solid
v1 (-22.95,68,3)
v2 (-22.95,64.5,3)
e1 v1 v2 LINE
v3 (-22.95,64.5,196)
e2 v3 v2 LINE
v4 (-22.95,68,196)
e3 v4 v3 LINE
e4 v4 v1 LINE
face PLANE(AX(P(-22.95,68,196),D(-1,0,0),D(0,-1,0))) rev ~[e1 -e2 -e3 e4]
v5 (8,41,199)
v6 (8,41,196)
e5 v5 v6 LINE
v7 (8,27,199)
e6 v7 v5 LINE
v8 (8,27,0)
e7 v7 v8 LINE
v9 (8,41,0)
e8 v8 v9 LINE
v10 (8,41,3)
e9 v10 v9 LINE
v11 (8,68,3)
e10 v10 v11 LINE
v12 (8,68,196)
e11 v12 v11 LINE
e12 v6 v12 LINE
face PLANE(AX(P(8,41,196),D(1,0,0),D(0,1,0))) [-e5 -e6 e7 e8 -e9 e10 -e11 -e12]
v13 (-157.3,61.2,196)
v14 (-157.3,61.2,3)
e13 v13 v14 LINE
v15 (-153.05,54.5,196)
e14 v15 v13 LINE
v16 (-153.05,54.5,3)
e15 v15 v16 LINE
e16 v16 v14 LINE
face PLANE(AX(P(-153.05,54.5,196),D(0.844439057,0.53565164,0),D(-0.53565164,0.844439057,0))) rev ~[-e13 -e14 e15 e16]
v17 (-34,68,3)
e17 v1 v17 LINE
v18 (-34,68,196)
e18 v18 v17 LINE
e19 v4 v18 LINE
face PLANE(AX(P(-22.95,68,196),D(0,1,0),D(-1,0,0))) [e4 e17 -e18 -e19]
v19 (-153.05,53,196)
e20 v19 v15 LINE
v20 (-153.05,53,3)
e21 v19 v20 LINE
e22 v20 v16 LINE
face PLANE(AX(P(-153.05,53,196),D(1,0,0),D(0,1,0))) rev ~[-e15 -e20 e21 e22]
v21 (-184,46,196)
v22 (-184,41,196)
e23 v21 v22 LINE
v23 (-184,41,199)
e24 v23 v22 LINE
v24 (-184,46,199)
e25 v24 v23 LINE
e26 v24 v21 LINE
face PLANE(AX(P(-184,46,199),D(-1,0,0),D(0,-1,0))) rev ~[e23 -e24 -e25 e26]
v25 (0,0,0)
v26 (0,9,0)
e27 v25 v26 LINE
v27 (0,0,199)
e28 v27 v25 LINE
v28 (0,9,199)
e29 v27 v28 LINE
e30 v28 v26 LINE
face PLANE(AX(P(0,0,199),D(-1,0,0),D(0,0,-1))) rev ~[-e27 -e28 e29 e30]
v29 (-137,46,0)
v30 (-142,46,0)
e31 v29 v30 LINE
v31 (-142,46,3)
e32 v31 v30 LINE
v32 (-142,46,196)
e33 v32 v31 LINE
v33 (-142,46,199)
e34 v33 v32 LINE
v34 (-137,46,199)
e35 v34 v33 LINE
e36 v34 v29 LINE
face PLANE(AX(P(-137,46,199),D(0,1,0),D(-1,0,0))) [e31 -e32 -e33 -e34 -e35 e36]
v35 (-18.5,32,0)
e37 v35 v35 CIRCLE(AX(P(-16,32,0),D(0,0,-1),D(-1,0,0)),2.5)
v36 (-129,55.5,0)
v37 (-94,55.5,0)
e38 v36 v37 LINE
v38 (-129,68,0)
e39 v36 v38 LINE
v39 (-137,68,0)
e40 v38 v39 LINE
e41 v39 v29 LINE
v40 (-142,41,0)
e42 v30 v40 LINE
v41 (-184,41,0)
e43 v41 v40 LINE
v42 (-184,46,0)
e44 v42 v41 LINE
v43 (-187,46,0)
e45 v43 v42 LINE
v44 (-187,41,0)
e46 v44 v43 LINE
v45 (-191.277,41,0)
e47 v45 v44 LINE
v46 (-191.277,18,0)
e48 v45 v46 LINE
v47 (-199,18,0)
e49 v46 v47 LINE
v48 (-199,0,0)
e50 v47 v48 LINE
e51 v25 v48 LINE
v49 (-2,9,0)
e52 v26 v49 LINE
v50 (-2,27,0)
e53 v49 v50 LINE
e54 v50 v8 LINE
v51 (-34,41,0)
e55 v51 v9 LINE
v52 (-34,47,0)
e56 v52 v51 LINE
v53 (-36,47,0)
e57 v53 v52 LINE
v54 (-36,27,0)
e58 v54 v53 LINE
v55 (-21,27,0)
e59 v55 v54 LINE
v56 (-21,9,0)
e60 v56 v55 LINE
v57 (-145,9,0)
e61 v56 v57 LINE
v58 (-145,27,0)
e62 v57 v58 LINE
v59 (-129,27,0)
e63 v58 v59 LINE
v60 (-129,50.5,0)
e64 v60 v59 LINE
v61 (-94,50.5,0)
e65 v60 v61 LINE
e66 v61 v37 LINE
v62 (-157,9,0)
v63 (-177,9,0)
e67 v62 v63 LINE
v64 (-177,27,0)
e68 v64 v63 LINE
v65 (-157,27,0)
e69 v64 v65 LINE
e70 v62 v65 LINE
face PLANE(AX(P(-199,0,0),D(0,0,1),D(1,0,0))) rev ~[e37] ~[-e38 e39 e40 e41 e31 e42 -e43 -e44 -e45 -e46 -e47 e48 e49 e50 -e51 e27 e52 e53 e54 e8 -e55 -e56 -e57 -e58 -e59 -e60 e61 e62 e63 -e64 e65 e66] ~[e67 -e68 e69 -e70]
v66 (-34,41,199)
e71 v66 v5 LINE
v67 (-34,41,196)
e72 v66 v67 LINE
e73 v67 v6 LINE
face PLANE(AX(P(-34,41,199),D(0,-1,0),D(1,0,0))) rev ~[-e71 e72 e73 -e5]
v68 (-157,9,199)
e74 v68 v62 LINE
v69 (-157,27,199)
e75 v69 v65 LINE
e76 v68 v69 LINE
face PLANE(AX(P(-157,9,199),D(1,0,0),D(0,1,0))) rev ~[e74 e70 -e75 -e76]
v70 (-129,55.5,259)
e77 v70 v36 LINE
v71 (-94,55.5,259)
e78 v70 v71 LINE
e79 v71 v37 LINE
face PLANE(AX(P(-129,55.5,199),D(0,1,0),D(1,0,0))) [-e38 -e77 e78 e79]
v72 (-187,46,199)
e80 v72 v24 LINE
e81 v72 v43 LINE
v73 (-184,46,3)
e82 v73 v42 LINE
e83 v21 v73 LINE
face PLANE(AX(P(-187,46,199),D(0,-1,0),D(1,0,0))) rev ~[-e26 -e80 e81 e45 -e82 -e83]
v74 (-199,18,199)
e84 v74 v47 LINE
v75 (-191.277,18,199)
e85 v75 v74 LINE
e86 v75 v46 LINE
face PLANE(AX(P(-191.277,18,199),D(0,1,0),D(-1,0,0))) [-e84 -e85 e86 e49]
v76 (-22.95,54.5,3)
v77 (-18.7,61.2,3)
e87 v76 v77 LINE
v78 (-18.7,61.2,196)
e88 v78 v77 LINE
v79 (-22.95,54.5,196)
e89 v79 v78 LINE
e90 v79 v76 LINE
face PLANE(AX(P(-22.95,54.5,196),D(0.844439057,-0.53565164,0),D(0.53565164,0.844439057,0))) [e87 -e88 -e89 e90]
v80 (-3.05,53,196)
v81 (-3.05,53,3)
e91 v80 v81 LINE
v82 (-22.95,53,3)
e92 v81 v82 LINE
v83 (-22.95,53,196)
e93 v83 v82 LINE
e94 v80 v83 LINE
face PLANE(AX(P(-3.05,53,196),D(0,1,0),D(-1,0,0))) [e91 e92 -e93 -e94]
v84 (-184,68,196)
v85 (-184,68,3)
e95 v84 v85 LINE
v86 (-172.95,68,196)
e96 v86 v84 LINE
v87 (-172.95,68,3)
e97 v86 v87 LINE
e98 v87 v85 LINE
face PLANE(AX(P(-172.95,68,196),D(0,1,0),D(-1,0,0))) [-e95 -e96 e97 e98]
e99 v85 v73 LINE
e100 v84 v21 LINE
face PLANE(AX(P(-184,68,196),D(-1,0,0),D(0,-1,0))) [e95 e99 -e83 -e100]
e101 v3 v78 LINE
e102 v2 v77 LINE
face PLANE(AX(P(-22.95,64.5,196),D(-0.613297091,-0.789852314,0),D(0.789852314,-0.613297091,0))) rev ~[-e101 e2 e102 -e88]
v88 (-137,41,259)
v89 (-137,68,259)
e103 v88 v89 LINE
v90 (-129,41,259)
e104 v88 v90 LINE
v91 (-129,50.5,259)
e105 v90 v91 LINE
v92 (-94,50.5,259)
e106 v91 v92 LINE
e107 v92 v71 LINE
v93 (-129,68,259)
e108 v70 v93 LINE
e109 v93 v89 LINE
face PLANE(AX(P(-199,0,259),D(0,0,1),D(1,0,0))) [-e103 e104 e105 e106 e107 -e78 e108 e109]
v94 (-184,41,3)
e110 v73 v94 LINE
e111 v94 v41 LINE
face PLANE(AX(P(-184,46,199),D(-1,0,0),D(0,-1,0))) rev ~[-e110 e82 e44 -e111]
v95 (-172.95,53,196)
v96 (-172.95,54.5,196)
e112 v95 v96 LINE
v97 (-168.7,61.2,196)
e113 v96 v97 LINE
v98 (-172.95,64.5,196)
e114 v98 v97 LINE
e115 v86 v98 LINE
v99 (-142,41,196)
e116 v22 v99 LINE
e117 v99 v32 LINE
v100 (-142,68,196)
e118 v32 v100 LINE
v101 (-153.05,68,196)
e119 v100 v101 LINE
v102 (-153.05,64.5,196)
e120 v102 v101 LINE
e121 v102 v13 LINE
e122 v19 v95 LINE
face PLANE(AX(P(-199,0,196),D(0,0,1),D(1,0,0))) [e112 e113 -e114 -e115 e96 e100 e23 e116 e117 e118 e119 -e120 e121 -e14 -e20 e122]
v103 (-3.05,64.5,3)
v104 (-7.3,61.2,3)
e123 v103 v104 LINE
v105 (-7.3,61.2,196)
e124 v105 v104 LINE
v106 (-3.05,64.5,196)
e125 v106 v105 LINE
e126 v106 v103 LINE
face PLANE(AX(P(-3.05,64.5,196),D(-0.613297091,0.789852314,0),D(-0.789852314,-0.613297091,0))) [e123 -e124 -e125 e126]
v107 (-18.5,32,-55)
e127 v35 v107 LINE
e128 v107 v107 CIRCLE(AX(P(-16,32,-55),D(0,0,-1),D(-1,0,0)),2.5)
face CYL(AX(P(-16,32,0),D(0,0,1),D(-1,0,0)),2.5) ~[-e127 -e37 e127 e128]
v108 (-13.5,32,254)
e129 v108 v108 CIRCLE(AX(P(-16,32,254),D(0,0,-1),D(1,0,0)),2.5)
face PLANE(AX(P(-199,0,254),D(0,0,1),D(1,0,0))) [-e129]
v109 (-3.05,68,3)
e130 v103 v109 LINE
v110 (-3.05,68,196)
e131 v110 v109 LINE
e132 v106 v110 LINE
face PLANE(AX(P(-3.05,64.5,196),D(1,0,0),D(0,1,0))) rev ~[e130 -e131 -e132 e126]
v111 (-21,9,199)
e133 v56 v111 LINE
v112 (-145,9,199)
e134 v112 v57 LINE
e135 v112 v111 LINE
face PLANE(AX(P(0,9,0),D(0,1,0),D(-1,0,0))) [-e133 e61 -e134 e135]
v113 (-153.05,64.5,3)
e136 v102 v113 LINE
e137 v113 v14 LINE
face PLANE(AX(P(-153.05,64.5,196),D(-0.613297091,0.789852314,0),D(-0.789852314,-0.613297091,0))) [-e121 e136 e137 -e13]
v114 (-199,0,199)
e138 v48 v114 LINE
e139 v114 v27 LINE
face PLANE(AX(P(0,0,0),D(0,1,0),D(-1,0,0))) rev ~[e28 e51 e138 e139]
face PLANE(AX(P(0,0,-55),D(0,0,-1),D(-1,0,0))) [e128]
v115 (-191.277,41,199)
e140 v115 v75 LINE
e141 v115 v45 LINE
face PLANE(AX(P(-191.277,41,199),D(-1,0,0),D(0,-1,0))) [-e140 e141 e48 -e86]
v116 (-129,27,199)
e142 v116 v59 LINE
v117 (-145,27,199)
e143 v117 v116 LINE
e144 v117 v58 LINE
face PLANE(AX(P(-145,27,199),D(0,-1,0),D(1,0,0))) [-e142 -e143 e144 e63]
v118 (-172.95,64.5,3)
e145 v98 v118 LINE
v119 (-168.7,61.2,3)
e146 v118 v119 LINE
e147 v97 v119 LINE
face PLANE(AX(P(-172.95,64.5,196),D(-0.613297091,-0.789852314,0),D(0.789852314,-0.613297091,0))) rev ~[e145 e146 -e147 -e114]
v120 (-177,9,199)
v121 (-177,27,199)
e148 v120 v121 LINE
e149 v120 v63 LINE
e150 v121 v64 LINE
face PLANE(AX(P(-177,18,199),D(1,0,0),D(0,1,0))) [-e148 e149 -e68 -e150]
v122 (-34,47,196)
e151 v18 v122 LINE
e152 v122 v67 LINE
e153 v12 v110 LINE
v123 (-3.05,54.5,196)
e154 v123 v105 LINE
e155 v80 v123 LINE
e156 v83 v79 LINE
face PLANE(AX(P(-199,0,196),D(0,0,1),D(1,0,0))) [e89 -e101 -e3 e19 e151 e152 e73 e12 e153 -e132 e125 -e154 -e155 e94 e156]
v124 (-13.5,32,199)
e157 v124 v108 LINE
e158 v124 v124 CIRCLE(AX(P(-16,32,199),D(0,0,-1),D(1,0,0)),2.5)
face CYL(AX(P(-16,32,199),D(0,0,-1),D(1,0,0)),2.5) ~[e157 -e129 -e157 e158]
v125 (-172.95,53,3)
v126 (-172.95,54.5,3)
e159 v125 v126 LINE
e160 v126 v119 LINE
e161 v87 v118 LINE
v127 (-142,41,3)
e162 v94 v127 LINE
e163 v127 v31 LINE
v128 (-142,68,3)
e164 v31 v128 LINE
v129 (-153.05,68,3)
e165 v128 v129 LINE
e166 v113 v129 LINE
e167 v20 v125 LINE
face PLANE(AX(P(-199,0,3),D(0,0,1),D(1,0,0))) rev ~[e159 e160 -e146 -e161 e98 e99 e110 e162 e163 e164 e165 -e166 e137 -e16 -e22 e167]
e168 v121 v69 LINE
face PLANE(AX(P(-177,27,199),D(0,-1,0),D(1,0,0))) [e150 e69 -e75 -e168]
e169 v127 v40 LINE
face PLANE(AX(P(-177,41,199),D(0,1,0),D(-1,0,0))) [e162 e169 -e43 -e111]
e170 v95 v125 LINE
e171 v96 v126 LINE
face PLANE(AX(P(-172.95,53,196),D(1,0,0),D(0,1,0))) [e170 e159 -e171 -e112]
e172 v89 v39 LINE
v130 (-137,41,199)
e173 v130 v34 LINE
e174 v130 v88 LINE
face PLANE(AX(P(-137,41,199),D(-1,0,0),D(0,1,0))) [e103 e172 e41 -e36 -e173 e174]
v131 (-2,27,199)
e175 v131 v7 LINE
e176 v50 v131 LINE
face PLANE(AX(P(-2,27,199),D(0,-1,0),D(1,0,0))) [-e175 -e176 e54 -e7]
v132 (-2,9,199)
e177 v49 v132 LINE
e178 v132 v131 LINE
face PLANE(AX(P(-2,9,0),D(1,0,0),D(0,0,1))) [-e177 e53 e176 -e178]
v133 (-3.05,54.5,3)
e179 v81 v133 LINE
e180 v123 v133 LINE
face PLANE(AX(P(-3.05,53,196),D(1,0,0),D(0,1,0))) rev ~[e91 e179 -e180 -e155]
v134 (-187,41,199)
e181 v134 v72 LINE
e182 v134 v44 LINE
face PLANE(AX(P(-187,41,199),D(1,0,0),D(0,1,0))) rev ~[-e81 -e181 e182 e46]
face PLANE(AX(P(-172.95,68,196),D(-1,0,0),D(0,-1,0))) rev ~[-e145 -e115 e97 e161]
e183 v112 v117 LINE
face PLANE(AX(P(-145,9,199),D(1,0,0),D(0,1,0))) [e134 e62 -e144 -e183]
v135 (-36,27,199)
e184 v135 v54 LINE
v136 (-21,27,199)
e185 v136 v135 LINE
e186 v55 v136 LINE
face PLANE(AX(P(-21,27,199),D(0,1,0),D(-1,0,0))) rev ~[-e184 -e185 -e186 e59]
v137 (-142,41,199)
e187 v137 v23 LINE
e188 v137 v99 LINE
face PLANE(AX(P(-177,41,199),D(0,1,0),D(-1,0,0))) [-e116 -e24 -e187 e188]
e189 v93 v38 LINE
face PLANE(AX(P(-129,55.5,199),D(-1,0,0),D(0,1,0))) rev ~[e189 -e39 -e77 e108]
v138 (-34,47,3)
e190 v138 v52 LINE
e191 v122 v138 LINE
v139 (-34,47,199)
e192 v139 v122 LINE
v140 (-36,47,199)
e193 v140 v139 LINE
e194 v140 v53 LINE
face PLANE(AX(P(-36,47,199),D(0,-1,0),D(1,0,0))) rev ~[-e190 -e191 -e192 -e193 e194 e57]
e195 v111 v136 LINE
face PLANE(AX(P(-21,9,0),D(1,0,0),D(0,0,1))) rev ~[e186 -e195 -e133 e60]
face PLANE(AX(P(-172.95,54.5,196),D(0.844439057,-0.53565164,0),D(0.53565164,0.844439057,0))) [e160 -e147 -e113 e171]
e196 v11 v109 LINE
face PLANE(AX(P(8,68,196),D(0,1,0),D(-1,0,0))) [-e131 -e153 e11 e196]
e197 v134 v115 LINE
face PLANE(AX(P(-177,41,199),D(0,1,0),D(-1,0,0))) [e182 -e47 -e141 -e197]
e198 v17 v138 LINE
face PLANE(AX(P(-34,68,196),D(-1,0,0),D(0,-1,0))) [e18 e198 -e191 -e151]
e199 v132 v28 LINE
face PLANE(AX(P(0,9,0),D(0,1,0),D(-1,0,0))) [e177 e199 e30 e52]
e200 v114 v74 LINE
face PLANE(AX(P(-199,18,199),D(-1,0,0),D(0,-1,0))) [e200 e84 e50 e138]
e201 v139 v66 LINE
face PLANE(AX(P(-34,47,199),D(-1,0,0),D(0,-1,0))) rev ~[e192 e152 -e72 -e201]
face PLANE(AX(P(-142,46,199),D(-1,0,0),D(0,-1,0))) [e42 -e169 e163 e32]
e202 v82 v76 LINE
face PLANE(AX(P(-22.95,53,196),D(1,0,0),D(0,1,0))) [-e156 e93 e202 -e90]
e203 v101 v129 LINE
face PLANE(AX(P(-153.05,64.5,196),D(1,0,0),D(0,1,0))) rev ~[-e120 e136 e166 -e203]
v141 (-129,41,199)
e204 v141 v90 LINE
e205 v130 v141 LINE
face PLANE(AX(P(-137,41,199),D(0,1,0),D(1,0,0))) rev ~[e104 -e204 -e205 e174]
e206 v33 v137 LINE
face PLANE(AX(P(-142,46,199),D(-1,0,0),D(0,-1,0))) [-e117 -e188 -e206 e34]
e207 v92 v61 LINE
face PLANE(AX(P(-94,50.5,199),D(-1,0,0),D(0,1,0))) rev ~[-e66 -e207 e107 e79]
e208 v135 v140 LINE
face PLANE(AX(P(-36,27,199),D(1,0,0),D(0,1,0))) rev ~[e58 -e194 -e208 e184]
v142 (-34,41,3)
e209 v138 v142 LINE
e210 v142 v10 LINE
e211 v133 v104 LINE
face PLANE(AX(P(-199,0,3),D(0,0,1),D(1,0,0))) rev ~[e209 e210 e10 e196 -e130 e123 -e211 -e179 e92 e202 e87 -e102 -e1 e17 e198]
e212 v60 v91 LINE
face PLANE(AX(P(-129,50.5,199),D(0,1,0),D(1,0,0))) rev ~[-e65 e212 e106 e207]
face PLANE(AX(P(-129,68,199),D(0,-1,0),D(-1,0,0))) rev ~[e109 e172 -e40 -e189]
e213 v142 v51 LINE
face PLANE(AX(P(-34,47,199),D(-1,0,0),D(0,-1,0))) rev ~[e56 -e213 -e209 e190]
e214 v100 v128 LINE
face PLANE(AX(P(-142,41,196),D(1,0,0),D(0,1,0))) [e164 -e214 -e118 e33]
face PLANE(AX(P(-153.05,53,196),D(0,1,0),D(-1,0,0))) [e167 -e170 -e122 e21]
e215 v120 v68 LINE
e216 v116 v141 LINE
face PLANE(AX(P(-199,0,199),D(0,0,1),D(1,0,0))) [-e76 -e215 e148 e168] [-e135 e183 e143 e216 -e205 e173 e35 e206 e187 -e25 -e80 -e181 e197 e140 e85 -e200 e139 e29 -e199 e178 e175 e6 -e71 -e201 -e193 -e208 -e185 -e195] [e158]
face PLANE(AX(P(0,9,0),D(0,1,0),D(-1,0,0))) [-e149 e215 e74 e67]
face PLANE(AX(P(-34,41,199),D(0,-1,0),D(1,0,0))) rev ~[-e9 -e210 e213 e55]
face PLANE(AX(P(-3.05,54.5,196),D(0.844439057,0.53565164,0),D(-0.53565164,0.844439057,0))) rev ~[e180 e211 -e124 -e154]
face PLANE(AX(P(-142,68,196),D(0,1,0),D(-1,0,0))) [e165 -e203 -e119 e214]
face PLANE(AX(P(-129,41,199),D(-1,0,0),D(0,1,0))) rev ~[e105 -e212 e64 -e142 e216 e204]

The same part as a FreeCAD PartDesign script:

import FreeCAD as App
import Part
import Sketcher
Q = App.Units.Quantity

doc = App.newDocument("Part")
body = doc.addObject("PartDesign::Body", "Body")

# Sketch on XZ plane
sketch1 = body.newObject("Sketcher::SketchObject", "Sketch")
sketch1.AttachmentSupport = (doc.getObject("XZ_Plane"), [""])
sketch1.MapMode = "FlatFace"
sketch1.addGeometry([
    Part.LineSegment(App.Vector(0, 199, 0), App.Vector(0, 0, 0)),
    Part.LineSegment(App.Vector(0, 0, 0), App.Vector(-199, 0, 0)),
    Part.LineSegment(App.Vector(-199, 0, 0), App.Vector(-199, 199, 0)),
    Part.LineSegment(App.Vector(-199, 199, 0), App.Vector(0, 199, 0)),
], False)
sketch1.addConstraint([
    Sketcher.Constraint("Coincident", 0, 2, 1, 1),
    Sketcher.Constraint("Coincident", 1, 2, 2, 1),
    Sketcher.Constraint("Coincident", 2, 2, 3, 1),
    Sketcher.Constraint("Coincident", 3, 2, 0, 1),
    Sketcher.Constraint("Vertical", 0),
    Sketcher.Constraint("Horizontal", 1),
    Sketcher.Constraint("Vertical", 2),
    Sketcher.Constraint("Horizontal", 3),
    Sketcher.Constraint("Coincident", 0, 2, -1, 1),
    Sketcher.Constraint("Equal", 3, 0),
    Sketcher.Constraint("DistanceX", 1, 2, 1, 1, Q("199 mm")),
])
pad1 = body.newObject("PartDesign::Pad", "Pad")
pad1.Profile = sketch1
pad1.Length = 9
pad1.Reversed = True

# Sketch on XZ plane
sketch2 = body.newObject("Sketcher::SketchObject", "Sketch001")
sketch2.AttachmentSupport = (doc.getObject("XZ_Plane"), [""])
sketch2.MapMode = "FlatFace"
sketch2.AttachmentOffset = App.Placement(App.Vector(0, 0, -9), App.Rotation())
sketch2.addGeometry([
    Part.LineSegment(App.Vector(-2, 199, 0), App.Vector(-2, 0, 0)),
    Part.LineSegment(App.Vector(-2, 0, 0), App.Vector(-21, 0, 0)),
    Part.LineSegment(App.Vector(-21, 0, 0), App.Vector(-21, 199, 0)),
    Part.LineSegment(App.Vector(-21, 199, 0), App.Vector(-2, 199, 0)),
], False)
sketch2.addConstraint([
    Sketcher.Constraint("Coincident", 0, 2, 1, 1),
    Sketcher.Constraint("Coincident", 1, 2, 2, 1),
    Sketcher.Constraint("Coincident", 2, 2, 3, 1),
    Sketcher.Constraint("Coincident", 3, 2, 0, 1),
    Sketcher.Constraint("Vertical", 0),
    Sketcher.Constraint("Horizontal", 1),
    Sketcher.Constraint("Vertical", 2),
    Sketcher.Constraint("Horizontal", 3),
    Sketcher.Constraint("PointOnObject", 0, 2, -1),
    Sketcher.Constraint("DistanceX", 1, 2, 1, 1, Q("19 mm")),
    Sketcher.Constraint("DistanceX", 0, 2, -1, 1, Q("2 mm")),
    Sketcher.Constraint("DistanceY", 0, 2, 0, 1, Q("199 mm")),
])
pad2 = body.newObject("PartDesign::Pad", "Pad001")
pad2.Profile = sketch2
pad2.Length = 18
pad2.Reversed = True

# Sketch on XY plane
sketch3 = body.newObject("Sketcher::SketchObject", "Sketch002")
sketch3.AttachmentSupport = (doc.getObject("XY_Plane"), [""])
sketch3.MapMode = "FlatFace"
sketch3.AttachmentOffset = App.Placement(App.Vector(0, 0, 199), App.Rotation())
sketch3.addGeometry([
    Part.LineSegment(App.Vector(-36, 27, 0), App.Vector(8, 27, 0)),  # 0
    Part.LineSegment(App.Vector(8, 27, 0), App.Vector(8, 41, 0)),  # 1
    Part.LineSegment(App.Vector(8, 41, 0), App.Vector(-34, 41, 0)),  # 2
    Part.LineSegment(App.Vector(-34, 41, 0), App.Vector(-34, 47, 0)),  # 3
    Part.LineSegment(App.Vector(-34, 47, 0), App.Vector(-36, 47, 0)),  # 4
    Part.LineSegment(App.Vector(-36, 47, 0), App.Vector(-36, 27, 0)),  # 5
], False)
sketch3.addConstraint([
    Sketcher.Constraint("Coincident", 0, 2, 1, 1),
    Sketcher.Constraint("Coincident", 1, 2, 2, 1),
    Sketcher.Constraint("Coincident", 2, 2, 3, 1),
    Sketcher.Constraint("Coincident", 3, 2, 4, 1),
    Sketcher.Constraint("Coincident", 4, 2, 5, 1),
    Sketcher.Constraint("Coincident", 5, 2, 0, 1),
    Sketcher.Constraint("Horizontal", 0),
    Sketcher.Constraint("Vertical", 1),
    Sketcher.Constraint("Horizontal", 2),
    Sketcher.Constraint("Vertical", 3),
    Sketcher.Constraint("Horizontal", 4),
    Sketcher.Constraint("Vertical", 5),
    Sketcher.Constraint("DistanceX", 4, 2, 4, 1, Q("2 mm")),
    Sketcher.Constraint("DistanceY", 1, 1, 1, 2, Q("14 mm")),
    Sketcher.Constraint("DistanceY", 5, 2, 5, 1, Q("20 mm")),
    Sketcher.Constraint("DistanceX", 0, 1, 0, 2, Q("44 mm")),
    Sketcher.Constraint("DistanceX", -1, 1, 0, 2, Q("8 mm")),
    Sketcher.Constraint("DistanceY", -1, 1, 0, 2, Q("27 mm")),
])
pad3 = body.newObject("PartDesign::Pad", "Pad002")
pad3.Profile = sketch3
pad3.Length = 199
pad3.Reversed = True

# Sketch on XY plane
sketch4 = body.newObject("Sketcher::SketchObject", "Sketch003")
sketch4.AttachmentSupport = (doc.getObject("XY_Plane"), [""])
sketch4.MapMode = "FlatFace"
sketch4.AttachmentOffset = App.Placement(App.Vector(0, 0, 196), App.Rotation())
sketch4.addGeometry([
    Part.LineSegment(App.Vector(-34, 68, 0), App.Vector(-34, 41, 0)),  # 0
    Part.LineSegment(App.Vector(-34, 41, 0), App.Vector(8, 41, 0)),  # 1
    Part.LineSegment(App.Vector(8, 41, 0), App.Vector(8, 68, 0)),  # 2
    Part.LineSegment(App.Vector(8, 68, 0), App.Vector(-3, 68, 0)),  # 3
    Part.LineSegment(App.Vector(-3, 68, 0), App.Vector(-3, 64.5, 0)),  # 4
    Part.LineSegment(App.Vector(-3, 64.5, 0), App.Vector(-7.3, 61.2, 0)),  # 5
    Part.LineSegment(App.Vector(-7.3, 61.2, 0), App.Vector(-3, 54.5, 0)),  # 6
    Part.LineSegment(App.Vector(-3, 54.5, 0), App.Vector(-3, 53, 0)),  # 7
    Part.LineSegment(App.Vector(-3, 53, 0), App.Vector(-22.9, 53, 0)),  # 8
    Part.LineSegment(App.Vector(-22.9, 53, 0), App.Vector(-22.9, 54.5, 0)),  # 9
    Part.LineSegment(App.Vector(-22.9, 54.5, 0), App.Vector(-18.7, 61.2, 0)),  # 10
    Part.LineSegment(App.Vector(-18.7, 61.2, 0), App.Vector(-22.9, 64.5, 0)),  # 11
    Part.LineSegment(App.Vector(-22.9, 64.5, 0), App.Vector(-22.9, 68, 0)),  # 12
    Part.LineSegment(App.Vector(-22.9, 68, 0), App.Vector(-34, 68, 0)),  # 13
], False)
sketch4.addConstraint([
    Sketcher.Constraint("Coincident", 0, 2, 1, 1),
    Sketcher.Constraint("Coincident", 1, 2, 2, 1),
    Sketcher.Constraint("Coincident", 2, 2, 3, 1),
    Sketcher.Constraint("Coincident", 3, 2, 4, 1),
    Sketcher.Constraint("Coincident", 4, 2, 5, 1),
    Sketcher.Constraint("Coincident", 5, 2, 6, 1),
    Sketcher.Constraint("Coincident", 6, 2, 7, 1),
    Sketcher.Constraint("Coincident", 7, 2, 8, 1),
    Sketcher.Constraint("Coincident", 8, 2, 9, 1),
    Sketcher.Constraint("Coincident", 9, 2, 10, 1),
    Sketcher.Constraint("Coincident", 10, 2, 11, 1),
    Sketcher.Constraint("Coincident", 11, 2, 12, 1),
    Sketcher.Constraint("Coincident", 12, 2, 13, 1),
    Sketcher.Constraint("Coincident", 13, 2, 0, 1),
    Sketcher.Constraint("Vertical", 0),
    Sketcher.Constraint("Horizontal", 1),
    Sketcher.Constraint("Vertical", 2),
    Sketcher.Constraint("Horizontal", 3),
    Sketcher.Constraint("Vertical", 4),
    Sketcher.Constraint("Vertical", 7),
    Sketcher.Constraint("Horizontal", 8),
    Sketcher.Constraint("Vertical", 9),
    Sketcher.Constraint("Vertical", 12),
    Sketcher.Constraint("Horizontal", 13),
    Sketcher.Constraint("Horizontal", 6, 2, 9, 2),
    Sketcher.Constraint("Horizontal", 5, 2, 10, 2),
    Sketcher.Constraint("Horizontal", 4, 2, 11, 2),
    Sketcher.Constraint("Horizontal", 3, 2, 12, 2),
    Sketcher.Constraint("Vertical", 4, 2, 6, 2),
    Sketcher.Constraint("Vertical", 9, 2, 11, 2),
    Sketcher.Constraint("Equal", 3, 13),
    Sketcher.Constraint("Equal", 6, 10),
    Sketcher.Constraint("DistanceY", 0, 2, 0, 1, Q("27 mm")),
    Sketcher.Constraint("DistanceY", 7, 2, 7, 1, Q("1.5 mm")),
    Sketcher.Constraint("DistanceX", 3, 2, 3, 1, Q("11.05 mm")),
    Sketcher.Constraint("DistanceX", 1, 1, 1, 2, Q("42 mm")),
    Sketcher.Constraint("DistanceY", 4, 2, 4, 1, Q("3.5 mm")),
    Sketcher.Constraint("DistanceX", 0, 2, -1, 1, Q("34 mm")),
    Sketcher.Constraint("DistanceY", -1, 1, 0, 2, Q("41 mm")),
    Sketcher.Constraint("DistanceY", -1, 1, 7, 2, Q("53 mm")),
    Sketcher.Constraint("DistanceX", 5, 2, -1, 1, Q("7.3 mm")),
    Sketcher.Constraint("DistanceY", -1, 1, 5, 2, Q("61.2 mm")),
])
pad4 = body.newObject("PartDesign::Pad", "Pad003")
pad4.Profile = sketch4
pad4.Length = 193
pad4.Reversed = True

# Sketch on XY plane
sketch5 = body.newObject("Sketcher::SketchObject", "Sketch004")
sketch5.AttachmentSupport = (doc.getObject("XY_Plane"), [""])
sketch5.MapMode = "FlatFace"
sketch5.AttachmentOffset = App.Placement(App.Vector(0, 0, 199), App.Rotation())
sketch5.addGeometry([
    Part.LineSegment(App.Vector(-199, 18, 0), App.Vector(-199, 9, 0)),  # 0
    Part.LineSegment(App.Vector(-199, 9, 0), App.Vector(-177, 9, 0)),  # 1
    Part.LineSegment(App.Vector(-177, 9, 0), App.Vector(-177, 27, 0)),  # 2
    Part.LineSegment(App.Vector(-177, 27, 0), App.Vector(-157, 27, 0)),  # 3
    Part.LineSegment(App.Vector(-157, 27, 0), App.Vector(-157, 9, 0)),  # 4
    Part.LineSegment(App.Vector(-157, 9, 0), App.Vector(-145, 9, 0)),  # 5
    Part.LineSegment(App.Vector(-145, 9, 0), App.Vector(-145, 27, 0)),  # 6
    Part.LineSegment(App.Vector(-145, 27, 0), App.Vector(-129, 27, 0)),  # 7
    Part.LineSegment(App.Vector(-129, 27, 0), App.Vector(-129, 41, 0)),  # 8
    Part.LineSegment(App.Vector(-129, 41, 0), App.Vector(-191, 41, 0)),  # 9
    Part.LineSegment(App.Vector(-191, 41, 0), App.Vector(-191, 18, 0)),  # 10
    Part.LineSegment(App.Vector(-191, 18, 0), App.Vector(-199, 18, 0)),  # 11
], False)
sketch5.addConstraint([
    Sketcher.Constraint("Coincident", 0, 2, 1, 1),
    Sketcher.Constraint("Coincident", 1, 2, 2, 1),
    Sketcher.Constraint("Coincident", 2, 2, 3, 1),
    Sketcher.Constraint("Coincident", 3, 2, 4, 1),
    Sketcher.Constraint("Coincident", 4, 2, 5, 1),
    Sketcher.Constraint("Coincident", 5, 2, 6, 1),
    Sketcher.Constraint("Coincident", 6, 2, 7, 1),
    Sketcher.Constraint("Coincident", 7, 2, 8, 1),
    Sketcher.Constraint("Coincident", 8, 2, 9, 1),
    Sketcher.Constraint("Coincident", 9, 2, 10, 1),
    Sketcher.Constraint("Coincident", 10, 2, 11, 1),
    Sketcher.Constraint("Coincident", 11, 2, 0, 1),
    Sketcher.Constraint("Vertical", 0),
    Sketcher.Constraint("Horizontal", 1),
    Sketcher.Constraint("Vertical", 2),
    Sketcher.Constraint("Horizontal", 3),
    Sketcher.Constraint("Vertical", 4),
    Sketcher.Constraint("Horizontal", 5),
    Sketcher.Constraint("Vertical", 6),
    Sketcher.Constraint("Horizontal", 7),
    Sketcher.Constraint("Vertical", 8),
    Sketcher.Constraint("Horizontal", 9),
    Sketcher.Constraint("Vertical", 10),
    Sketcher.Constraint("Horizontal", 11),
    Sketcher.Constraint("Horizontal", 1, 2, 4, 2),
    Sketcher.Constraint("Horizontal", 3, 2, 6, 2),
    Sketcher.Constraint("DistanceX", 3, 1, 3, 2, Q("20 mm")),
    Sketcher.Constraint("DistanceY", 2, 1, 2, 2, Q("18 mm")),
    Sketcher.Constraint("DistanceY", 8, 1, 8, 2, Q("14 mm")),
    Sketcher.Constraint("DistanceY", -1, 1, 10, 2, Q("18 mm")),
    Sketcher.Constraint("DistanceX", 1, 1, 1, 2, Q("22 mm")),
    Sketcher.Constraint("DistanceX", 5, 1, 5, 2, Q("12 mm")),
    Sketcher.Constraint("DistanceX", 7, 1, 7, 2, Q("16 mm")),
    Sketcher.Constraint("DistanceY", 0, 2, 0, 1, Q("9 mm")),
    Sketcher.Constraint("DistanceX", 0, 2, -1, 1, Q("199 mm")),
    Sketcher.Constraint("DistanceX", 9, 2, 9, 1, Q("62.277 mm")),
])
pad5 = body.newObject("PartDesign::Pad", "Pad004")
pad5.Profile = sketch5
pad5.Length = 199
pad5.Reversed = True

# Sketch on XY plane
sketch6 = body.newObject("Sketcher::SketchObject", "Sketch005")
sketch6.AttachmentSupport = (doc.getObject("XY_Plane"), [""])
sketch6.MapMode = "FlatFace"
sketch6.AttachmentOffset = App.Placement(App.Vector(0, 0, 196), App.Rotation())
sketch6.addGeometry([
    Part.LineSegment(App.Vector(-184, 68, 0), App.Vector(-184, 41, 0)),  # 0
    Part.LineSegment(App.Vector(-184, 41, 0), App.Vector(-142, 41, 0)),  # 1
    Part.LineSegment(App.Vector(-142, 41, 0), App.Vector(-142, 68, 0)),  # 2
    Part.LineSegment(App.Vector(-142, 68, 0), App.Vector(-153.1, 68, 0)),  # 3
    Part.LineSegment(App.Vector(-153.1, 68, 0), App.Vector(-153.1, 64.5, 0)),  # 4
    Part.LineSegment(App.Vector(-153.1, 64.5, 0), App.Vector(-157.3, 61.2, 0)),  # 5
    Part.LineSegment(App.Vector(-157.3, 61.2, 0), App.Vector(-153.1, 54.5, 0)),  # 6
    Part.LineSegment(App.Vector(-153.1, 54.5, 0), App.Vector(-153.1, 53, 0)),  # 7
    Part.LineSegment(App.Vector(-153.1, 53, 0), App.Vector(-172.9, 53, 0)),  # 8
    Part.LineSegment(App.Vector(-172.9, 53, 0), App.Vector(-172.9, 54.5, 0)),  # 9
    Part.LineSegment(App.Vector(-172.9, 54.5, 0), App.Vector(-168.7, 61.2, 0)),  # 10
    Part.LineSegment(App.Vector(-168.7, 61.2, 0), App.Vector(-172.9, 64.5, 0)),  # 11
    Part.LineSegment(App.Vector(-172.9, 64.5, 0), App.Vector(-172.9, 68, 0)),  # 12
    Part.LineSegment(App.Vector(-172.9, 68, 0), App.Vector(-184, 68, 0)),  # 13
], False)
sketch6.addConstraint([
    Sketcher.Constraint("Coincident", 0, 2, 1, 1),
    Sketcher.Constraint("Coincident", 1, 2, 2, 1),
    Sketcher.Constraint("Coincident", 2, 2, 3, 1),
    Sketcher.Constraint("Coincident", 3, 2, 4, 1),
    Sketcher.Constraint("Coincident", 4, 2, 5, 1),
    Sketcher.Constraint("Coincident", 5, 2, 6, 1),
    Sketcher.Constraint("Coincident", 6, 2, 7, 1),
    Sketcher.Constraint("Coincident", 7, 2, 8, 1),
    Sketcher.Constraint("Coincident", 8, 2, 9, 1),
    Sketcher.Constraint("Coincident", 9, 2, 10, 1),
    Sketcher.Constraint("Coincident", 10, 2, 11, 1),
    Sketcher.Constraint("Coincident", 11, 2, 12, 1),
    Sketcher.Constraint("Coincident", 12, 2, 13, 1),
    Sketcher.Constraint("Coincident", 13, 2, 0, 1),
    Sketcher.Constraint("Vertical", 0),
    Sketcher.Constraint("Horizontal", 1),
    Sketcher.Constraint("Vertical", 2),
    Sketcher.Constraint("Horizontal", 3),
    Sketcher.Constraint("Vertical", 4),
    Sketcher.Constraint("Vertical", 7),
    Sketcher.Constraint("Horizontal", 8),
    Sketcher.Constraint("Vertical", 9),
    Sketcher.Constraint("Vertical", 12),
    Sketcher.Constraint("Horizontal", 13),
    Sketcher.Constraint("Horizontal", 6, 2, 9, 2),
    Sketcher.Constraint("Horizontal", 5, 2, 10, 2),
    Sketcher.Constraint("Horizontal", 4, 2, 11, 2),
    Sketcher.Constraint("Horizontal", 3, 2, 12, 2),
    Sketcher.Constraint("Vertical", 4, 2, 6, 2),
    Sketcher.Constraint("Vertical", 9, 2, 11, 2),
    Sketcher.Constraint("Equal", 3, 13),
    Sketcher.Constraint("Equal", 6, 10),
    Sketcher.Constraint("DistanceY", 0, 2, 0, 1, Q("27 mm")),
    Sketcher.Constraint("DistanceY", 7, 2, 7, 1, Q("1.5 mm")),
    Sketcher.Constraint("DistanceX", 3, 2, 3, 1, Q("11.05 mm")),
    Sketcher.Constraint("DistanceX", 1, 1, 1, 2, Q("42 mm")),
    Sketcher.Constraint("DistanceY", 4, 2, 4, 1, Q("3.5 mm")),
    Sketcher.Constraint("DistanceX", 0, 2, -1, 1, Q("184 mm")),
    Sketcher.Constraint("DistanceY", -1, 1, 0, 2, Q("41 mm")),
    Sketcher.Constraint("DistanceY", -1, 1, 7, 2, Q("53 mm")),
    Sketcher.Constraint("DistanceX", 5, 2, -1, 1, Q("157.3 mm")),
    Sketcher.Constraint("DistanceY", -1, 1, 5, 2, Q("61.2 mm")),
])
pad6 = body.newObject("PartDesign::Pad", "Pad005")
pad6.Profile = sketch6
pad6.Length = 193
pad6.Reversed = True

# Sketch on XY plane
sketch7 = body.newObject("Sketcher::SketchObject", "Sketch006")
sketch7.AttachmentSupport = (doc.getObject("XY_Plane"), [""])
sketch7.MapMode = "FlatFace"
sketch7.AttachmentOffset = App.Placement(App.Vector(0, 0, 199), App.Rotation())
sketch7.addGeometry([
    Part.LineSegment(App.Vector(-187, 41, 0), App.Vector(-184, 41, 0)),  # 0
    Part.LineSegment(App.Vector(-184, 41, 0), App.Vector(-184, 46, 0)),  # 1
    Part.LineSegment(App.Vector(-184, 46, 0), App.Vector(-187, 46, 0)),  # 2
    Part.LineSegment(App.Vector(-187, 46, 0), App.Vector(-187, 41, 0)),  # 3
    Part.LineSegment(App.Vector(-142, 41, 0), App.Vector(-137, 41, 0)),  # 4
    Part.LineSegment(App.Vector(-137, 41, 0), App.Vector(-137, 46, 0)),  # 5
    Part.LineSegment(App.Vector(-137, 46, 0), App.Vector(-142, 46, 0)),  # 6
    Part.LineSegment(App.Vector(-142, 46, 0), App.Vector(-142, 41, 0)),  # 7
], False)
sketch7.addConstraint([
    Sketcher.Constraint("Coincident", 0, 2, 1, 1),
    Sketcher.Constraint("Coincident", 1, 2, 2, 1),
    Sketcher.Constraint("Coincident", 2, 2, 3, 1),
    Sketcher.Constraint("Coincident", 3, 2, 0, 1),
    Sketcher.Constraint("Coincident", 4, 2, 5, 1),
    Sketcher.Constraint("Coincident", 5, 2, 6, 1),
    Sketcher.Constraint("Coincident", 6, 2, 7, 1),
    Sketcher.Constraint("Coincident", 7, 2, 4, 1),
    Sketcher.Constraint("Horizontal", 0),
    Sketcher.Constraint("Vertical", 1),
    Sketcher.Constraint("Horizontal", 2),
    Sketcher.Constraint("Vertical", 3),
    Sketcher.Constraint("Horizontal", 4),
    Sketcher.Constraint("Vertical", 5),
    Sketcher.Constraint("Horizontal", 6),
    Sketcher.Constraint("Vertical", 7),
    Sketcher.Constraint("Horizontal", 3, 2, 4, 2),
    Sketcher.Constraint("Horizontal", 2, 2, 5, 2),
    Sketcher.Constraint("Equal", 6, 1),
    Sketcher.Constraint("DistanceX", 0, 1, 0, 2, Q("3 mm")),
    Sketcher.Constraint("DistanceX", 4, 1, 4, 2, Q("5 mm")),
    Sketcher.Constraint("DistanceX", 0, 2, -1, 1, Q("184 mm")),
    Sketcher.Constraint("DistanceY", -1, 1, 0, 2, Q("41 mm")),
    Sketcher.Constraint("DistanceX", 4, 2, -1, 1, Q("137 mm")),
])
pad7 = body.newObject("PartDesign::Pad", "Pad006")
pad7.Profile = sketch7
pad7.Length = 199
pad7.Reversed = True

# Sketch on XY plane
sketch8 = body.newObject("Sketcher::SketchObject", "Sketch007")
sketch8.AttachmentSupport = (doc.getObject("XY_Plane"), [""])
sketch8.MapMode = "FlatFace"
sketch8.AttachmentOffset = App.Placement(App.Vector(0, 0, 199), App.Rotation())
sketch8.addGeometry([
    Part.LineSegment(App.Vector(-137, 68, 0), App.Vector(-137, 41, 0)),  # 0
    Part.LineSegment(App.Vector(-137, 41, 0), App.Vector(-129, 41, 0)),  # 1
    Part.LineSegment(App.Vector(-129, 41, 0), App.Vector(-129, 50, 0)),  # 2
    Part.LineSegment(App.Vector(-129, 50, 0), App.Vector(-94, 50, 0)),  # 3
    Part.LineSegment(App.Vector(-94, 50, 0), App.Vector(-94, 56, 0)),  # 4
    Part.LineSegment(App.Vector(-94, 56, 0), App.Vector(-129, 56, 0)),  # 5
    Part.LineSegment(App.Vector(-129, 56, 0), App.Vector(-129, 68, 0)),  # 6
    Part.LineSegment(App.Vector(-129, 68, 0), App.Vector(-137, 68, 0)),  # 7
], False)
sketch8.addConstraint([
    Sketcher.Constraint("Coincident", 0, 2, 1, 1),
    Sketcher.Constraint("Coincident", 1, 2, 2, 1),
    Sketcher.Constraint("Coincident", 2, 2, 3, 1),
    Sketcher.Constraint("Coincident", 3, 2, 4, 1),
    Sketcher.Constraint("Coincident", 4, 2, 5, 1),
    Sketcher.Constraint("Coincident", 5, 2, 6, 1),
    Sketcher.Constraint("Coincident", 6, 2, 7, 1),
    Sketcher.Constraint("Coincident", 7, 2, 0, 1),
    Sketcher.Constraint("Vertical", 0),
    Sketcher.Constraint("Horizontal", 1),
    Sketcher.Constraint("Vertical", 2),
    Sketcher.Constraint("Horizontal", 3),
    Sketcher.Constraint("Vertical", 4),
    Sketcher.Constraint("Horizontal", 5),
    Sketcher.Constraint("Vertical", 6),
    Sketcher.Constraint("Horizontal", 7),
    Sketcher.Constraint("Vertical", 2, 2, 5, 2),
    Sketcher.Constraint("DistanceX", 3, 1, 3, 2, Q("35 mm")),
    Sketcher.Constraint("DistanceY", 0, 2, 0, 1, Q("27 mm")),
    Sketcher.Constraint("DistanceY", 4, 1, 4, 2, Q("5 mm")),
    Sketcher.Constraint("DistanceY", 6, 1, 6, 2, Q("12.5 mm")),
    Sketcher.Constraint("DistanceX", 1, 1, 1, 2, Q("8 mm")),
    Sketcher.Constraint("DistanceX", 0, 2, -1, 1, Q("137 mm")),
    Sketcher.Constraint("DistanceY", -1, 1, 0, 2, Q("41 mm")),
])
pad8 = body.newObject("PartDesign::Pad", "Pad007")
pad8.Profile = sketch8
pad8.Length = 199
pad8.Reversed = True

# Sketch on XY plane
sketch9 = body.newObject("Sketcher::SketchObject", "Sketch008")
sketch9.AttachmentSupport = (doc.getObject("XY_Plane"), [""])
sketch9.MapMode = "FlatFace"
sketch9.AttachmentOffset = App.Placement(App.Vector(0, 0, 199), App.Rotation())
sketch9.addGeometry([
    Part.LineSegment(App.Vector(-137, 68, 0), App.Vector(-137, 41, 0)),  # 0
    Part.LineSegment(App.Vector(-137, 41, 0), App.Vector(-129, 41, 0)),  # 1
    Part.LineSegment(App.Vector(-129, 41, 0), App.Vector(-129, 50, 0)),  # 2
    Part.LineSegment(App.Vector(-129, 50, 0), App.Vector(-94, 50, 0)),  # 3
    Part.LineSegment(App.Vector(-94, 50, 0), App.Vector(-94, 56, 0)),  # 4
    Part.LineSegment(App.Vector(-94, 56, 0), App.Vector(-129, 56, 0)),  # 5
    Part.LineSegment(App.Vector(-129, 56, 0), App.Vector(-129, 68, 0)),  # 6
    Part.LineSegment(App.Vector(-129, 68, 0), App.Vector(-137, 68, 0)),  # 7
], False)
sketch9.addConstraint([
    Sketcher.Constraint("Coincident", 0, 2, 1, 1),
    Sketcher.Constraint("Coincident", 1, 2, 2, 1),
    Sketcher.Constraint("Coincident", 2, 2, 3, 1),
    Sketcher.Constraint("Coincident", 3, 2, 4, 1),
    Sketcher.Constraint("Coincident", 4, 2, 5, 1),
    Sketcher.Constraint("Coincident", 5, 2, 6, 1),
    Sketcher.Constraint("Coincident", 6, 2, 7, 1),
    Sketcher.Constraint("Coincident", 7, 2, 0, 1),
    Sketcher.Constraint("Vertical", 0),
    Sketcher.Constraint("Horizontal", 1),
    Sketcher.Constraint("Vertical", 2),
    Sketcher.Constraint("Horizontal", 3),
    Sketcher.Constraint("Vertical", 4),
    Sketcher.Constraint("Horizontal", 5),
    Sketcher.Constraint("Vertical", 6),
    Sketcher.Constraint("Horizontal", 7),
    Sketcher.Constraint("Vertical", 2, 2, 5, 2),
    Sketcher.Constraint("DistanceX", 3, 1, 3, 2, Q("35 mm")),
    Sketcher.Constraint("DistanceY", 0, 2, 0, 1, Q("27 mm")),
    Sketcher.Constraint("DistanceY", 4, 1, 4, 2, Q("5 mm")),
    Sketcher.Constraint("DistanceY", 6, 1, 6, 2, Q("12.5 mm")),
    Sketcher.Constraint("DistanceX", 1, 1, 1, 2, Q("8 mm")),
    Sketcher.Constraint("DistanceX", 0, 2, -1, 1, Q("137 mm")),
    Sketcher.Constraint("DistanceY", -1, 1, 0, 2, Q("41 mm")),
])
pad9 = body.newObject("PartDesign::Pad", "Pad008")
pad9.Profile = sketch9
pad9.Length = 60

# Sketch on XY plane
sketch10 = body.newObject("Sketcher::SketchObject", "Sketch009")
sketch10.AttachmentSupport = (doc.getObject("XY_Plane"), [""])
sketch10.MapMode = "FlatFace"
sketch10.AttachmentOffset = App.Placement(App.Vector(0, 0, 199), App.Rotation())
sketch10.addGeometry(Part.Circle(App.Vector(-16, 32, 0), App.Vector(0, 0, 1), 2.5), False)
sketch10.addConstraint([
    Sketcher.Constraint("Diameter", 0, Q("5 mm")),
    Sketcher.Constraint("DistanceX", 0, 3, -1, 1, Q("16 mm")),
    Sketcher.Constraint("DistanceY", -1, 1, 0, 3, Q("32 mm")),
])
pad10 = body.newObject("PartDesign::Pad", "Pad009")
pad10.Profile = sketch10
pad10.Length = 55

# Sketch on XY plane
sketch11 = body.newObject("Sketcher::SketchObject", "Sketch010")
sketch11.AttachmentSupport = (doc.getObject("XY_Plane"), [""])
sketch11.MapMode = "FlatFace"
sketch11.addGeometry(Part.Circle(App.Vector(-16, 32, 0), App.Vector(0, 0, 1), 2.5), False)
sketch11.addConstraint([
    Sketcher.Constraint("Diameter", 0, Q("5 mm")),
    Sketcher.Constraint("DistanceX", 0, 3, -1, 1, Q("16 mm")),
    Sketcher.Constraint("DistanceY", -1, 1, 0, 3, Q("32 mm")),
])
pad11 = body.newObject("PartDesign::Pad", "Pad010")
pad11.Profile = sketch11
pad11.Length = 55
pad11.Reversed = True

doc.recompute()
